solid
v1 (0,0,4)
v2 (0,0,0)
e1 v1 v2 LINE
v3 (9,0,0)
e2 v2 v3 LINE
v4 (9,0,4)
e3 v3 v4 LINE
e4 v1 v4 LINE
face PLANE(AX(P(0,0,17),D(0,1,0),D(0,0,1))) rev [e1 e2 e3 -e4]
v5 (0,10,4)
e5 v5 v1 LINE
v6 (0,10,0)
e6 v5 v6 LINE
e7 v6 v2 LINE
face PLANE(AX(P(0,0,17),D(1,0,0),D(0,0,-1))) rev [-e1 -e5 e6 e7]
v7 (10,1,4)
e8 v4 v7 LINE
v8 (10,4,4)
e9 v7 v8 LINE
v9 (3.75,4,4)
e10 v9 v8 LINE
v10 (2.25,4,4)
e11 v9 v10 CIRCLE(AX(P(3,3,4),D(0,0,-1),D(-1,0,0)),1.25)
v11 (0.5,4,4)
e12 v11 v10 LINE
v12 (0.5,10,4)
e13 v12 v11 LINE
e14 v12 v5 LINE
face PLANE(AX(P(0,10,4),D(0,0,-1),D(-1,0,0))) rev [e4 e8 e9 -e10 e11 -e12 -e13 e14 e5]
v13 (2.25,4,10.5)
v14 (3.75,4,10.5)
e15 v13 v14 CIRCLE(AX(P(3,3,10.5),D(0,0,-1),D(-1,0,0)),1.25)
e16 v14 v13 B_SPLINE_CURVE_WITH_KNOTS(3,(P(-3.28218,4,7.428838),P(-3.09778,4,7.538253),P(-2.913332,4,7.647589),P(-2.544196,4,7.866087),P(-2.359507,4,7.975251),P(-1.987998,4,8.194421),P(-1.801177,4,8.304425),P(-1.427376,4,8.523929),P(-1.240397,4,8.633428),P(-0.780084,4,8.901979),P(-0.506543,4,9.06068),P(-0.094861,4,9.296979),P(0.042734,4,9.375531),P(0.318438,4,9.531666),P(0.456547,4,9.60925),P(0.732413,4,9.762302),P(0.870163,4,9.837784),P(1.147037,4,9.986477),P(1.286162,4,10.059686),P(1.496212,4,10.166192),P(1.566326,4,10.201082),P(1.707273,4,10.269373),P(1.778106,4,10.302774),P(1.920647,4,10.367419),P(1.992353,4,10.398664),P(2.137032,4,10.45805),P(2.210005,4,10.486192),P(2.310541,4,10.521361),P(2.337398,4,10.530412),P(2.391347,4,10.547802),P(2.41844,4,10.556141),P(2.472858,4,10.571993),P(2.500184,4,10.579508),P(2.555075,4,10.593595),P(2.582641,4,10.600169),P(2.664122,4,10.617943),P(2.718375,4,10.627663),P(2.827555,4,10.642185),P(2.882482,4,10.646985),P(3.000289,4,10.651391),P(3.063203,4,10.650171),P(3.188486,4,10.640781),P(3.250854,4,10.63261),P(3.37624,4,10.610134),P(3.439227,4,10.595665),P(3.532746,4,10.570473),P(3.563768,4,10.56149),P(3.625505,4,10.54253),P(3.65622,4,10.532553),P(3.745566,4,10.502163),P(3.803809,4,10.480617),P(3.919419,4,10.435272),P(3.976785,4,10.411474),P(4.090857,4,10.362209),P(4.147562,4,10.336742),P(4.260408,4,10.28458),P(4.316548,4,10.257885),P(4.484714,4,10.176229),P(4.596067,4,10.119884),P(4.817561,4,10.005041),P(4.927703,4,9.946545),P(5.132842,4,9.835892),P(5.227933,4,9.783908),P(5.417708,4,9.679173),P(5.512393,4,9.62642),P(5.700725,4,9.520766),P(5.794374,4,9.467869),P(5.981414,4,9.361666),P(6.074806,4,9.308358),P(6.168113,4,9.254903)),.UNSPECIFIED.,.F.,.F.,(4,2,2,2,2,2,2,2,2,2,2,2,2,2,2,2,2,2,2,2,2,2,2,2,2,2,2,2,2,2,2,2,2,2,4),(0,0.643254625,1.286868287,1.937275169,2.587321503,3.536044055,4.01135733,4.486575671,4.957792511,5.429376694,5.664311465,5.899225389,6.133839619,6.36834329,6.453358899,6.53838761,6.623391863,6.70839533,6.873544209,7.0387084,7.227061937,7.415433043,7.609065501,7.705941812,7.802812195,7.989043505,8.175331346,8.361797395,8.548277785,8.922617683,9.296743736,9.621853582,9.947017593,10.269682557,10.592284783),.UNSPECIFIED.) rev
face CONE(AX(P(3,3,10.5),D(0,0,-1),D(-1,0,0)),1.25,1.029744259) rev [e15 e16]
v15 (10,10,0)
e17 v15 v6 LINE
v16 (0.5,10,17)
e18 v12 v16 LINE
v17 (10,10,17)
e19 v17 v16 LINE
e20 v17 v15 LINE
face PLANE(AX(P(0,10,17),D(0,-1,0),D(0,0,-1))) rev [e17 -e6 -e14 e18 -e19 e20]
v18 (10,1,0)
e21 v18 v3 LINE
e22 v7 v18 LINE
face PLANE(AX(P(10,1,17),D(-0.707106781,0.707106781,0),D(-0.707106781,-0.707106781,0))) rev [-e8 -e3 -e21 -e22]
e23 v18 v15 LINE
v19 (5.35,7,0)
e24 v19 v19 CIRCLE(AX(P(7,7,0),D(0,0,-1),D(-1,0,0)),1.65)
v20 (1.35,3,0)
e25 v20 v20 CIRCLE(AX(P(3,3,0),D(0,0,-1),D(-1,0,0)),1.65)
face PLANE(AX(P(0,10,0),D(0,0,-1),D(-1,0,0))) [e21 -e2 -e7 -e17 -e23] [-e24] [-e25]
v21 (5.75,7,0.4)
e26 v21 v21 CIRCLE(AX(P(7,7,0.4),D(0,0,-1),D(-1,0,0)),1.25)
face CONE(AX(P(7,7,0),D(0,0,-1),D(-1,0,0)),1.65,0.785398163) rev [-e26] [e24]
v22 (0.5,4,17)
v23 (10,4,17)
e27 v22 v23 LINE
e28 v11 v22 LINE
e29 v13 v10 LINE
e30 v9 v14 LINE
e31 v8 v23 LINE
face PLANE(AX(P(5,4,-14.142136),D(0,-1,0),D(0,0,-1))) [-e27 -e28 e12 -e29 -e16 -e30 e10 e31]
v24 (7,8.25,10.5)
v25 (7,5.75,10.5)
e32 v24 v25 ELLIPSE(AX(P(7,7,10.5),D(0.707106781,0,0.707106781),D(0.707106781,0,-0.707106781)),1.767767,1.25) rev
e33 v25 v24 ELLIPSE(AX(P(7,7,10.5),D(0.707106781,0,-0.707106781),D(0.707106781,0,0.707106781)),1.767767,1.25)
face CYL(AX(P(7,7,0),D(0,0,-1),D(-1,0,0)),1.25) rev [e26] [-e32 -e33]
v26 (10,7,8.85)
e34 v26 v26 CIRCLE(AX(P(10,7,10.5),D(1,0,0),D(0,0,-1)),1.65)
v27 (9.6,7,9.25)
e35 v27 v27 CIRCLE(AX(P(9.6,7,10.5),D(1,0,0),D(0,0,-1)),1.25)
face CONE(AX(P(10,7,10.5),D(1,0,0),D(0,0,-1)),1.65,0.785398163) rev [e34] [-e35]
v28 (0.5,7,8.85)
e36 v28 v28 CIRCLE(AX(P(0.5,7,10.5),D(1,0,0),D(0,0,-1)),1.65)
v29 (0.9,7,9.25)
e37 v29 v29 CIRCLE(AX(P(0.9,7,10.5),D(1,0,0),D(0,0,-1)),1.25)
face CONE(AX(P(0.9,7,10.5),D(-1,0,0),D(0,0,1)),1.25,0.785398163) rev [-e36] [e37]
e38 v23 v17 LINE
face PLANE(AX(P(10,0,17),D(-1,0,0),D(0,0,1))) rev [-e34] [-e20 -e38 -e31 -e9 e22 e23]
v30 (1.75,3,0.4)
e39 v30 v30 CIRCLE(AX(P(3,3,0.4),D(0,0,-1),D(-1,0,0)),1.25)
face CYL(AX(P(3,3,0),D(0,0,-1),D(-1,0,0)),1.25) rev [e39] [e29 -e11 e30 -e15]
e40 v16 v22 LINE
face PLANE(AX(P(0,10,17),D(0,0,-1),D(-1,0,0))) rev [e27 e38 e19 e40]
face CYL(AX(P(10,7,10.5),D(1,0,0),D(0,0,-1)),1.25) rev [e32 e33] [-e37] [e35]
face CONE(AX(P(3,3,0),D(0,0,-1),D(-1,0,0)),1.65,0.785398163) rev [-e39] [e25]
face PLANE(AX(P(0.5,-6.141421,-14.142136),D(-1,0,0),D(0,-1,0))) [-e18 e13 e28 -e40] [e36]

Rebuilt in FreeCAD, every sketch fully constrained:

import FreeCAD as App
import Part
import Sketcher


def edges_at(feature, points):
    """Names of the edges that pass closest to the given points."""
    edges = feature.Shape.Edges
    near = lambda p: min(range(len(edges)), key=lambda i: edges[i].distToShape(Part.Vertex(*p))[0])
    return sorted({f"Edge{near(p) + 1}" for p in points})

doc = App.newDocument("Part")
body = doc.addObject("PartDesign::Body", "Body")

# Sketch on XY plane
sketch1 = doc.addObject("Sketcher::SketchObject", "Sketch")
body.addObject(sketch1)
sketch1.AttachmentSupport = (doc.XY_Plane, [""])
sketch1.MapMode = "FlatFace"
sketch1.addGeometry([
    Part.LineSegment(App.Vector(0, 10, 0), App.Vector(0, 0, 0)),
    Part.LineSegment(App.Vector(0, 0, 0), App.Vector(10, 0, 0)),
    Part.LineSegment(App.Vector(10, 0, 0), App.Vector(10, 10, 0)),
    Part.LineSegment(App.Vector(10, 10, 0), App.Vector(0, 10, 0)),
], False)
sketch1.addConstraint([
    Sketcher.Constraint("Coincident", 0, 2, 1, 1),
    Sketcher.Constraint("Coincident", 1, 2, 2, 1),
    Sketcher.Constraint("Coincident", 2, 2, 3, 1),
    Sketcher.Constraint("Coincident", 3, 2, 0, 1),
    Sketcher.Constraint("Vertical", 0),
    Sketcher.Constraint("Horizontal", 1),
    Sketcher.Constraint("Vertical", 2),
    Sketcher.Constraint("Horizontal", 3),
    Sketcher.Constraint("Coincident", 0, 2, -1, 1),
    Sketcher.Constraint("Equal", 3, 0),
    Sketcher.Constraint("DistanceX", 1, 1, 1, 2, 10.0),
])
pad1 = doc.addObject("PartDesign::Pad", "Pad")
body.addObject(pad1)
pad1.Profile = sketch1
pad1.Length = 17

# Sketch on XY plane
sketch2 = doc.addObject("Sketcher::SketchObject", "Sketch001")
body.addObject(sketch2)
sketch2.AttachmentSupport = (doc.XY_Plane, [""])
sketch2.MapMode = "FlatFace"
sketch2.AttachmentOffset = App.Placement(App.Vector(0, 0, 17), App.Rotation())
sketch2.addGeometry([
    Part.LineSegment(App.Vector(0.5, 4, 0), App.Vector(0.5, 10, 0)),  # 0
    Part.LineSegment(App.Vector(0.5, 10, 0), App.Vector(0, 10, 0)),  # 1
    Part.LineSegment(App.Vector(0, 10, 0), App.Vector(0, 0, 0)),  # 2
    Part.LineSegment(App.Vector(0, 0, 0), App.Vector(10, 0, 0)),  # 3
    Part.LineSegment(App.Vector(10, 0, 0), App.Vector(10, 4, 0)),  # 4
    Part.LineSegment(App.Vector(10, 4, 0), App.Vector(0.5, 4, 0)),  # 5
], False)
sketch2.addConstraint([
    Sketcher.Constraint("Coincident", 0, 2, 1, 1),
    Sketcher.Constraint("Coincident", 1, 2, 2, 1),
    Sketcher.Constraint("Coincident", 2, 2, 3, 1),
    Sketcher.Constraint("Coincident", 3, 2, 4, 1),
    Sketcher.Constraint("Coincident", 4, 2, 5, 1),
    Sketcher.Constraint("Coincident", 5, 2, 0, 1),
    Sketcher.Constraint("Vertical", 0),
    Sketcher.Constraint("Horizontal", 1),
    Sketcher.Constraint("Vertical", 2),
    Sketcher.Constraint("Horizontal", 3),
    Sketcher.Constraint("Vertical", 4),
    Sketcher.Constraint("Horizontal", 5),
    Sketcher.Constraint("Coincident", 2, 2, -1, 1),
    Sketcher.Constraint("Equal", 3, 2),
    Sketcher.Constraint("DistanceX", 3, 1, 3, 2, 10.0),
    Sketcher.Constraint("DistanceY", 0, 1, 0, 2, 6.0),
    Sketcher.Constraint("DistanceX", 1, 2, 1, 1, 0.5),
])
pocket1 = doc.addObject("PartDesign::Pocket", "Pocket")
body.addObject(pocket1)
pocket1.Profile = sketch2
pocket1.Length = 13

# Sketch on XZ plane
sketch3 = doc.addObject("Sketcher::SketchObject", "Sketch002")
body.addObject(sketch3)
sketch3.AttachmentSupport = (doc.XZ_Plane, [""])
sketch3.MapMode = "FlatFace"
sketch3.AttachmentOffset = App.Placement(App.Vector(0, 0, -7), App.Rotation())
sketch3.addGeometry([
    Part.LineSegment(App.Vector(0.5, 10.5, 0), App.Vector(10, 10.5, 0)),  # 0
    Part.LineSegment(App.Vector(10, 10.5, 0), App.Vector(10, 8.85, 0)),  # 1
    Part.LineSegment(App.Vector(10, 8.85, 0), App.Vector(9.6, 9.25, 0)),  # 2
    Part.LineSegment(App.Vector(9.6, 9.25, 0), App.Vector(0.9, 9.25, 0)),  # 3
    Part.LineSegment(App.Vector(0.9, 9.25, 0), App.Vector(0.5, 8.85, 0)),  # 4
    Part.LineSegment(App.Vector(0.5, 8.85, 0), App.Vector(0.5, 10.5, 0)),  # 5
], False)
sketch3.addGeometry(Part.LineSegment(App.Vector(10, 10.5, 0), App.Vector(0.5, 10.5, 0)), True)  # axis
sketch3.addConstraint([
    Sketcher.Constraint("Coincident", 0, 2, 1, 1),
    Sketcher.Constraint("Coincident", 1, 2, 2, 1),
    Sketcher.Constraint("Coincident", 2, 2, 3, 1),
    Sketcher.Constraint("Coincident", 3, 2, 4, 1),
    Sketcher.Constraint("Coincident", 4, 2, 5, 1),
    Sketcher.Constraint("Coincident", 5, 2, 0, 1),
    Sketcher.Constraint("Horizontal", 0),
    Sketcher.Constraint("Vertical", 1),
    Sketcher.Constraint("Horizontal", 3),
    Sketcher.Constraint("Vertical", 5),
    Sketcher.Constraint("Horizontal", 6),
    Sketcher.Constraint("Coincident", 6, 1, 0, 2),
    Sketcher.Constraint("Perpendicular", 2, 4),
    Sketcher.Constraint("Horizontal", 1, 2, 4, 2),
    Sketcher.Constraint("Vertical", 4, 2, 6, 2),
    Sketcher.Constraint("Equal", 2, 4),
    Sketcher.Constraint("DistanceX", 0, 1, 0, 2, 9.5),
    Sketcher.Constraint("DistanceX", 3, 2, 3, 1, 8.7),
    Sketcher.Constraint("DistanceX", -1, 1, 0, 2, 10.0),
    Sketcher.Constraint("DistanceY", 1, 2, 1, 1, 1.65),
    Sketcher.Constraint("DistanceY", -1, 1, 0, 2, 10.5),
])
groove = doc.addObject("PartDesign::Groove", "Groove")
body.addObject(groove)
groove.Profile = sketch3
groove.ReferenceAxis = (sketch3, ["Axis0"])
groove.Angle = 360

# Sketch on XY plane
sketch4 = doc.addObject("Sketcher::SketchObject", "Sketch003")
body.addObject(sketch4)
sketch4.AttachmentSupport = (doc.XY_Plane, [""])
sketch4.MapMode = "FlatFace"
sketch4.addGeometry([
    Part.Circle(App.Vector(3, 3, 0), App.Vector(0, 0, 1), 1.25),
    Part.Circle(App.Vector(7, 7, 0), App.Vector(0, 0, 1), 1.25),
], False)
sketch4.addConstraint([
    Sketcher.Constraint("Equal", 0, 1),
    Sketcher.Constraint("Diameter", 0, 2.5),
    Sketcher.Constraint("DistanceX", -1, 1, 0, 3, 3.0),
    Sketcher.Constraint("DistanceY", -1, 1, 0, 3, 3.0),
    Sketcher.Constraint("DistanceX", -1, 1, 1, 3, 7.0),
    Sketcher.Constraint("DistanceY", -1, 1, 1, 3, 7.0),
])
doc.recompute()
hole = doc.addObject("PartDesign::Hole", "Hole")
body.addObject(hole)
hole.Profile = sketch4
hole.ThreadType = "None"
hole.Diameter = 2.5
hole.DepthType = "Dimension"
hole.Depth = 10.5
hole.DrillPoint = "Angled"
hole.DrillPointAngle = 118
hole.HoleCutType = "Countersink"
hole.HoleCutDiameter = 3.3
hole.HoleCutCountersinkAngle = 90
hole.Reversed = True
doc.recompute()

chamfer = doc.addObject("PartDesign::Chamfer", "Chamfer")
body.addObject(chamfer)
chamfer.Base = (hole, edges_at(hole, [(10, 0, 2)]))
chamfer.Size = 1

doc.recompute()
